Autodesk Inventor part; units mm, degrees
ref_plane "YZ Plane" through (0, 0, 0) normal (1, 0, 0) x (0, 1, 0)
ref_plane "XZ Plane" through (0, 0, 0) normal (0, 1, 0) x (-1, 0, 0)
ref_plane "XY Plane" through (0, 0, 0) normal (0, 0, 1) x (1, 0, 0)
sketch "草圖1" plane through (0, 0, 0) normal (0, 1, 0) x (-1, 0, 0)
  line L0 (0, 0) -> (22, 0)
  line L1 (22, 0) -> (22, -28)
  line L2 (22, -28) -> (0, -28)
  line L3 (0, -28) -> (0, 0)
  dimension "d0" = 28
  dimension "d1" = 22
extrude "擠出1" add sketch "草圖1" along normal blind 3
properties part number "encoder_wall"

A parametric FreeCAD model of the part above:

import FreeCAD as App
import Part
import Sketcher
Q = App.Units.Quantity

doc = App.newDocument("Part")
body = doc.addObject("PartDesign::Body", "Body")

# Sketch on XZ plane
sketch1 = doc.addObject("Sketcher::SketchObject", "Sketch")
body.addObject(sketch1)
sketch1.AttachmentSupport = (doc.XZ_Plane, [""])
sketch1.MapMode = "FlatFace"
sketch1.addGeometry([
    Part.LineSegment(App.Vector(-22, 0, 0), App.Vector(0, 0, 0)),
    Part.LineSegment(App.Vector(0, 0, 0), App.Vector(0, -28, 0)),
    Part.LineSegment(App.Vector(0, -28, 0), App.Vector(-22, -28, 0)),
    Part.LineSegment(App.Vector(-22, -28, 0), App.Vector(-22, 0, 0)),
], False)
sketch1.addConstraint([
    Sketcher.Constraint("Coincident", 0, 2, 1, 1),
    Sketcher.Constraint("Coincident", 1, 2, 2, 1),
    Sketcher.Constraint("Coincident", 2, 2, 3, 1),
    Sketcher.Constraint("Coincident", 3, 2, 0, 1),
    Sketcher.Constraint("Horizontal", 0),
    Sketcher.Constraint("Vertical", 1),
    Sketcher.Constraint("Horizontal", 2),
    Sketcher.Constraint("Vertical", 3),
    Sketcher.Constraint("Coincident", 0, 2, -1, 1),
    Sketcher.Constraint("DistanceX", 0, 1, 0, 2, Q("22 mm")),
    Sketcher.Constraint("DistanceY", 1, 2, 1, 1, Q("28 mm")),
])
pad1 = doc.addObject("PartDesign::Pad", "Pad")
body.addObject(pad1)
pad1.Profile = sketch1
pad1.Length = 3
pad1.Reversed = True

doc.recompute()
